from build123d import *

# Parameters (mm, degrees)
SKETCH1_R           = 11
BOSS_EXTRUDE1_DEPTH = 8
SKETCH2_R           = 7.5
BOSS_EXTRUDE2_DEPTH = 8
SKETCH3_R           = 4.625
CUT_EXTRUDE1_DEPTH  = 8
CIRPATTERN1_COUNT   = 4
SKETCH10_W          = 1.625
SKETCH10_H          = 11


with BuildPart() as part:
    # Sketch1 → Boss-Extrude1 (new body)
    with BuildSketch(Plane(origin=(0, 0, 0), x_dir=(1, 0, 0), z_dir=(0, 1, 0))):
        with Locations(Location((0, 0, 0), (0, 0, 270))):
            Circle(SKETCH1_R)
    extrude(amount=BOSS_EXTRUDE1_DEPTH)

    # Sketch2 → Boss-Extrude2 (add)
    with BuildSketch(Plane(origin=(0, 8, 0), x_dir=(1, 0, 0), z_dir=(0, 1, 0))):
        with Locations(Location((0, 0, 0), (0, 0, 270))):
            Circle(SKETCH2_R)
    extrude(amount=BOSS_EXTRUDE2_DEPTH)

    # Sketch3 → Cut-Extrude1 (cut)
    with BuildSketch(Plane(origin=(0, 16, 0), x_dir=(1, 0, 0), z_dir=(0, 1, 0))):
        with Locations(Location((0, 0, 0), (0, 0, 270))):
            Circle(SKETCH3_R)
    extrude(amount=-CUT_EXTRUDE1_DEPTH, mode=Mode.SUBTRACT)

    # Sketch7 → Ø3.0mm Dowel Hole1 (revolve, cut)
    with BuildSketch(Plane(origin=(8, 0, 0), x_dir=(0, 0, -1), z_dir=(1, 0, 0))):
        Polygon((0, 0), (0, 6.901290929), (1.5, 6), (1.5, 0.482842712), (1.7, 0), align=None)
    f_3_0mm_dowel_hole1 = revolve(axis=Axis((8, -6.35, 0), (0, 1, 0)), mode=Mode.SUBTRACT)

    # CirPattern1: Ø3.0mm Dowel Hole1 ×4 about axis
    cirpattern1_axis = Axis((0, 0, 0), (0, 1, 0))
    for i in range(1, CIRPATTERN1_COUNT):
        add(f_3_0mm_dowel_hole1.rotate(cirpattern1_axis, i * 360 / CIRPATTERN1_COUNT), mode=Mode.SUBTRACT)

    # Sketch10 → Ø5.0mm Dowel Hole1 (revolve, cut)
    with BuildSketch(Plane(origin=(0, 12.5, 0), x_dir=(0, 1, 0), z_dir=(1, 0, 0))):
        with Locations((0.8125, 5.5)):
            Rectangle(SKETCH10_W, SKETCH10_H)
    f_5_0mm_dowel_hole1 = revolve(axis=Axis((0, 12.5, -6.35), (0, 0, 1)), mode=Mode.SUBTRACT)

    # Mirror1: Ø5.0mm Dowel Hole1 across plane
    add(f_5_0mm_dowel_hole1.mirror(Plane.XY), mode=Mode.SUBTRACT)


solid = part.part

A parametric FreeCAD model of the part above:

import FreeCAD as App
import Part
import Sketcher
from FreeCAD import Vector
Q = App.Units.Quantity


def add_polygon(sketch, points):
    """Adds a closed chain of lines whose ends are joined by coincident constraints."""
    first, n = sketch.GeometryCount, len(points)
    for a, b in zip(points, points[1:] + points[:1]):
        sketch.addGeometry(Part.LineSegment(App.Vector(*a, 0), App.Vector(*b, 0)), False)
    for i in range(n):
        sketch.addConstraint(Sketcher.Constraint("Coincident", first + i, 2, first + (i + 1) % n, 1))

doc = App.newDocument("Part")
body = doc.addObject("PartDesign::Body", "Body")

# Sketch on XZ plane
sketch1 = body.newObject("Sketcher::SketchObject", "Sketch")
sketch1.AttachmentSupport = (doc.getObject("XZ_Plane"), [""])
sketch1.MapMode = "FlatFace"
sketch1.addGeometry(Part.Circle(Vector(0, 0, 0), Vector(0, 0, 1), 11), False)
sketch1.addConstraint(Sketcher.Constraint("Coincident", 0, 3, -1, 1))
sketch1.addConstraint(Sketcher.Constraint("Diameter", 0, Q("22 mm")))
pad1 = body.newObject("PartDesign::Pad", "Pad")
pad1.Profile = sketch1
pad1.Length = 8
pad1.Reversed = True

# Sketch on XZ plane
sketch2 = body.newObject("Sketcher::SketchObject", "Sketch001")
sketch2.AttachmentSupport = (doc.getObject("XZ_Plane"), [""])
sketch2.MapMode = "FlatFace"
sketch2.AttachmentOffset = App.Placement(Vector(0, 0, -8), App.Rotation())
sketch2.addGeometry(Part.Circle(Vector(0, 0, 0), Vector(0, 0, 1), 8), False)
sketch2.addConstraint(Sketcher.Constraint("Coincident", 0, 3, -1, 1))
sketch2.addConstraint(Sketcher.Constraint("Diameter", 0, Q("15 mm")))
pad2 = body.newObject("PartDesign::Pad", "Pad001")
pad2.Profile = sketch2
pad2.Length = 8
pad2.Reversed = True

# Sketch on XZ plane
sketch3 = body.newObject("Sketcher::SketchObject", "Sketch002")
sketch3.AttachmentSupport = (doc.getObject("XZ_Plane"), [""])
sketch3.MapMode = "FlatFace"
sketch3.AttachmentOffset = App.Placement(Vector(0, 0, -16), App.Rotation())
sketch3.addGeometry(Part.Circle(Vector(0, 0, 0), Vector(0, 0, 1), 4.6), False)
sketch3.addConstraint(Sketcher.Constraint("Coincident", 0, 3, -1, 1))
sketch3.addConstraint(Sketcher.Constraint("Diameter", 0, Q("9.25 mm")))
pocket1 = body.newObject("PartDesign::Pocket", "Pocket")
pocket1.Profile = sketch3
pocket1.Length = 8
pocket1.Reversed = True

# Sketch on YZ plane
sketch4 = body.newObject("Sketcher::SketchObject", "Sketch003")
sketch4.AttachmentSupport = (doc.getObject("YZ_Plane"), [""])
sketch4.MapMode = "FlatFace"
sketch4.AttachmentOffset = App.Placement(Vector(0, 0, 8), App.Rotation())
add_polygon(sketch4, [(6.9, 0), (0, 0), (0, -1.7), (0.5, -1.5), (6, -1.5)])  # lines 0-4
sketch4.addConstraint(Sketcher.Constraint("Horizontal", 0))
sketch4.addConstraint(Sketcher.Constraint("Vertical", 1))
sketch4.addConstraint(Sketcher.Constraint("Horizontal", 3))
sketch4.addConstraint(Sketcher.Constraint("Coincident", 0, 2, -1, 1))
sketch4.addConstraint(Sketcher.Constraint("Angle", 4, Q("59 deg")))
sketch4.addConstraint(Sketcher.Constraint("DistanceY", 1, 2, 1, 1, Q("1.7 mm")))
sketch4.addConstraint(Sketcher.Constraint("DistanceX", -1, 1, 3, 2, Q("6 mm")))
sketch4.addConstraint(Sketcher.Constraint("Angle", 2, Q("22.5 deg")))
sketch4.addConstraint(Sketcher.Constraint("DistanceY", 2, 2, -1, 1, Q("1.5 mm")))
groove = body.newObject("PartDesign::Groove", "Groove")
groove.Profile = sketch4
groove.ReferenceAxis = (sketch4, ["H_Axis"])
groove.Angle = 360
doc.recompute()

polarpattern = body.newObject("PartDesign::PolarPattern", "PolarPattern")
polarpattern.Originals = [groove]
polarpattern.Axis = (doc.getObject("Y_Axis"), [""])
polarpattern.Angle = 360
polarpattern.Occurrences = 4
body.Tip = polarpattern

# Sketch on YZ plane
sketch5 = body.newObject("Sketcher::SketchObject", "Sketch004")
sketch5.AttachmentSupport = (doc.getObject("YZ_Plane"), [""])
sketch5.MapMode = "FlatFace"
add_polygon(sketch5, [(12.5, 11), (12.5, 0), (14.1, 0), (14.1, 11)])  # lines 0-3
sketch5.addGeometry(Part.LineSegment(Vector(12.5, 0, 0), Vector(12.5, 11, 0)), True)  # axis
sketch5.addConstraint(Sketcher.Constraint("Vertical", 0))
sketch5.addConstraint(Sketcher.Constraint("Horizontal", 1))
sketch5.addConstraint(Sketcher.Constraint("Vertical", 2))
sketch5.addConstraint(Sketcher.Constraint("Horizontal", 3))
sketch5.addConstraint(Sketcher.Constraint("Vertical", 4))
sketch5.addConstraint(Sketcher.Constraint("Coincident", 4, 1, 0, 2))
sketch5.addConstraint(Sketcher.Constraint("PointOnObject", 0, 2, -1))
sketch5.addConstraint(Sketcher.Constraint("Horizontal", 2, 2, 4, 2))
sketch5.addConstraint(Sketcher.Constraint("DistanceY", 0, 2, 0, 1, Q("11 mm")))
sketch5.addConstraint(Sketcher.Constraint("DistanceX", -1, 1, 0, 2, Q("12.5 mm")))
sketch5.addConstraint(Sketcher.Constraint("DistanceX", 1, 1, 1, 2, Q("1.625 mm")))
groove2 = body.newObject("PartDesign::Groove", "Groove001")
groove2.Profile = sketch5
groove2.ReferenceAxis = (sketch5, ["Axis0"])
groove2.Angle = 360
doc.recompute()

mirrored = body.newObject("PartDesign::Mirrored", "Mirrored")
mirrored.Originals = [groove2]
mirrored.MirrorPlane = (doc.getObject("XY_Plane"), [""])
body.Tip = mirrored

doc.recompute()
